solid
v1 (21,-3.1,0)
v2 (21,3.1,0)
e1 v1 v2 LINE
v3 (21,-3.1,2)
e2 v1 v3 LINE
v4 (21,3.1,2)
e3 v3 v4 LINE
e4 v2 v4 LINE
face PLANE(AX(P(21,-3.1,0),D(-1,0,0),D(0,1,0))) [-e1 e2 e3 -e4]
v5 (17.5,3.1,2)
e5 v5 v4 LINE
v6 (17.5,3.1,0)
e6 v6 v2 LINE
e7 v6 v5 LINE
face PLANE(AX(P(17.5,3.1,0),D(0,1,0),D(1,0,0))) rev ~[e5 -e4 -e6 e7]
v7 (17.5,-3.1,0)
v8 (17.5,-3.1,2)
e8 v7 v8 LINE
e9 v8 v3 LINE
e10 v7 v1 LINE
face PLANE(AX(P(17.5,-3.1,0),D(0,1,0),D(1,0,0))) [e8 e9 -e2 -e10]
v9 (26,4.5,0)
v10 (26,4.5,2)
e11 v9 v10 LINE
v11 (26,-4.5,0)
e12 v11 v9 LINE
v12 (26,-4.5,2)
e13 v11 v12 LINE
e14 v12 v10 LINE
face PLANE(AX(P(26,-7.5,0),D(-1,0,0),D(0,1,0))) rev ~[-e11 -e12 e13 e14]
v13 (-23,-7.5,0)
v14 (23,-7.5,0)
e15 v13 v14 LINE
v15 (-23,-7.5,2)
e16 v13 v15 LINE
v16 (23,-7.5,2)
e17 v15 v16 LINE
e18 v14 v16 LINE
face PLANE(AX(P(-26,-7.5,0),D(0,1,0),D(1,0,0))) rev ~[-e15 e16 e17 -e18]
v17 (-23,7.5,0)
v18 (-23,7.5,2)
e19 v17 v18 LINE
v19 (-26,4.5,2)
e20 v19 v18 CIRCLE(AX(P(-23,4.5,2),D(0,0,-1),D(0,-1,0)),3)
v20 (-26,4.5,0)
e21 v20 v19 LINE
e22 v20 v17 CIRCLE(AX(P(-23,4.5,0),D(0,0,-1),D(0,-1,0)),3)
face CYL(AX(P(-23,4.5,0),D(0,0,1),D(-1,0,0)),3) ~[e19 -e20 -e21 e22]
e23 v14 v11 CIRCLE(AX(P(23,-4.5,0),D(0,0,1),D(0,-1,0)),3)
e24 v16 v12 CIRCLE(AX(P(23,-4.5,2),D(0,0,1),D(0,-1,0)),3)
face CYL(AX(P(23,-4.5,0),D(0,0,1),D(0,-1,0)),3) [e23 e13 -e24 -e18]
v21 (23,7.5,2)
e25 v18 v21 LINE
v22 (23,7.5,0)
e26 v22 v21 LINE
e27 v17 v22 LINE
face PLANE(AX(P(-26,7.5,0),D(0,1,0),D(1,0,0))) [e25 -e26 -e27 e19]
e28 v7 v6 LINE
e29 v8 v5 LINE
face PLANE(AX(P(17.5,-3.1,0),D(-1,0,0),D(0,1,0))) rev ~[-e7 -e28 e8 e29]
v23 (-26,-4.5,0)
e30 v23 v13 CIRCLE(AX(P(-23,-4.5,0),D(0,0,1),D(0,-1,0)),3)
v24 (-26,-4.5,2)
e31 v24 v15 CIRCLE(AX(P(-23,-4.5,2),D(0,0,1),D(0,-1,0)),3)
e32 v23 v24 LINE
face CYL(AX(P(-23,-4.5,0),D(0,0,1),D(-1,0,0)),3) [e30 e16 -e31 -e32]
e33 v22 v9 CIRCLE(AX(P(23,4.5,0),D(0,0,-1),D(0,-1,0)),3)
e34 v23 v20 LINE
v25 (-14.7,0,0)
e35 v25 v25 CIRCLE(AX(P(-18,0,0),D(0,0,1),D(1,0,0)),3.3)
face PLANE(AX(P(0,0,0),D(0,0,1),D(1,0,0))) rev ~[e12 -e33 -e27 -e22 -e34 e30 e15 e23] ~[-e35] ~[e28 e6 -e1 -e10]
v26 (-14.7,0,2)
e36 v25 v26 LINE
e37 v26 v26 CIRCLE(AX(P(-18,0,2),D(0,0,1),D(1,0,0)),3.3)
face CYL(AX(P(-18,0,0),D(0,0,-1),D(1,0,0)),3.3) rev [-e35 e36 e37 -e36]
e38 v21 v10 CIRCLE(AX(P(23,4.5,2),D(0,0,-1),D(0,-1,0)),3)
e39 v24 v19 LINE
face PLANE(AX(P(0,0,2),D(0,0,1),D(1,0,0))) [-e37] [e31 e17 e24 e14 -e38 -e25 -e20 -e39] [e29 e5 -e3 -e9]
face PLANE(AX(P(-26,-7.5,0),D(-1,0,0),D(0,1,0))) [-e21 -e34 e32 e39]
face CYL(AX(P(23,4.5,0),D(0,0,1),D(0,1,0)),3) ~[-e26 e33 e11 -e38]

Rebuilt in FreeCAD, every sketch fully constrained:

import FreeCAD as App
import Part
import Sketcher
from FreeCAD import Vector


def edges_at(feature, points):
    """Names of the edges that pass closest to the given points."""
    edges = feature.Shape.Edges
    near = lambda p: min(range(len(edges)), key=lambda i: edges[i].distToShape(Part.Vertex(*p))[0])
    return sorted({f"Edge{near(p) + 1}" for p in points})


def add_polygon(sketch, points):
    """Adds a closed chain of lines whose ends are joined by coincident constraints."""
    first, n = sketch.GeometryCount, len(points)
    for a, b in zip(points, points[1:] + points[:1]):
        sketch.addGeometry(Part.LineSegment(App.Vector(*a, 0), App.Vector(*b, 0)), False)
    for i in range(n):
        sketch.addConstraint(Sketcher.Constraint("Coincident", first + i, 2, first + (i + 1) % n, 1))

doc = App.newDocument("Part")
body = doc.addObject("PartDesign::Body", "Body")

sketch1 = body.newObject("Sketcher::SketchObject", "Sketch")
sketch1.AttachmentSupport = (doc.getObject("XY_Plane"), [""])
sketch1.MapMode = "FlatFace"
add_polygon(sketch1, [(-26, 7.5), (-26, -7.5), (26, -7.5), (26, 7.5)])
sketch1.addGeometry(Part.Circle(Vector(-18, 0, 0), Vector(0, 0, 1), 3.3), False)
add_polygon(sketch1, [(21, -3.1), (17.5, -3.1), (17.5, 3.1), (21, 3.1)])
sketch1.addConstraint([
    Sketcher.Constraint("Vertical", 0),
    Sketcher.Constraint("Horizontal", 1),
    Sketcher.Constraint("Vertical", 2),
    Sketcher.Constraint("Horizontal", 3),
    Sketcher.Constraint("Horizontal", 5),
    Sketcher.Constraint("Vertical", 6),
    Sketcher.Constraint("Horizontal", 7),
    Sketcher.Constraint("Vertical", 8),
    Sketcher.Constraint("Symmetric", 0, 2, 2, 2, -1, 1),
    Sketcher.Constraint("PointOnObject", 4, 3, -1),
    Sketcher.Constraint("Diameter", 4, 6.6),
    Sketcher.Constraint("DistanceX", 1, 1, 1, 2, 52.0),
    Sketcher.Constraint("DistanceY", 0, 2, 0, 1, 15.0),
    Sketcher.Constraint("DistanceX", 5, 2, 5, 1, 3.5),
    Sketcher.Constraint("DistanceY", 6, 1, 6, 2, 6.2),
    Sketcher.Constraint("DistanceX", 4, 3, -1, 1, 18.0),
    Sketcher.Constraint("DistanceX", -1, 1, 7, 2, 21.0),
    Sketcher.Constraint("DistanceY", 5, 2, -1, 1, 3.1),
])
pad1 = body.newObject("PartDesign::Pad", "Pad")
pad1.Profile = sketch1
pad1.Length = 2
doc.recompute()

fillet = body.newObject("PartDesign::Fillet", "Fillet")
fillet.Base = (pad1, edges_at(pad1, [
    (26, -7.5, 1),
    (26, 7.5, 1),
    (-26, 7.5, 1),
    (-26, -7.5, 1),
]))
fillet.Radius = 3

doc.recompute()
